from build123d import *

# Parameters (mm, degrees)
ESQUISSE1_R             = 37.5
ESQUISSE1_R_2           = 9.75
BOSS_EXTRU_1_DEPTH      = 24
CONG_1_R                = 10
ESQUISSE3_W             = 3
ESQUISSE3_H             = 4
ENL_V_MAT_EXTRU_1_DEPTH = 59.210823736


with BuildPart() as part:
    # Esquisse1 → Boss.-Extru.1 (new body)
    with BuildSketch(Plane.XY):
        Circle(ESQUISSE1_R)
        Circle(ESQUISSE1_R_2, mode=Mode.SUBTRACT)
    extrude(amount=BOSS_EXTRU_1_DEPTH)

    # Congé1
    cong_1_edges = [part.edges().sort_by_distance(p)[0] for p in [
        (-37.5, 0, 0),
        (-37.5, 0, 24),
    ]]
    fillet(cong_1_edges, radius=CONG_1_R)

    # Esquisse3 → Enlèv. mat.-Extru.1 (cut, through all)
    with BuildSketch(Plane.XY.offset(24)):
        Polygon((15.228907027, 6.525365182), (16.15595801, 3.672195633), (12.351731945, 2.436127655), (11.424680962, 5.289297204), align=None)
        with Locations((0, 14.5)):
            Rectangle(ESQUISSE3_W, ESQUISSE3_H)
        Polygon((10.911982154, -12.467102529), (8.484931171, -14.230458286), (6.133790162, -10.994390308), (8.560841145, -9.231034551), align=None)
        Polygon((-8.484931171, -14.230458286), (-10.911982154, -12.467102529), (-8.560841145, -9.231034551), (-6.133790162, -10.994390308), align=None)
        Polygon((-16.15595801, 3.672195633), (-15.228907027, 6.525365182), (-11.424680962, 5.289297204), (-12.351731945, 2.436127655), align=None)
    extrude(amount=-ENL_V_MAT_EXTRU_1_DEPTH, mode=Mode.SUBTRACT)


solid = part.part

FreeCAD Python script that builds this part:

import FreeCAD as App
import Part
import Sketcher
Q = App.Units.Quantity


def edges_at(feature, points):
    """Names of the edges that pass closest to the given points."""
    edges = feature.Shape.Edges
    near = lambda p: min(range(len(edges)), key=lambda i: edges[i].distToShape(Part.Vertex(*p))[0])
    return sorted({f"Edge{near(p) + 1}" for p in points})


def add_polygon(sketch, points):
    """Adds a closed chain of lines whose ends are joined by coincident constraints."""
    first, n = sketch.GeometryCount, len(points)
    for a, b in zip(points, points[1:] + points[:1]):
        sketch.addGeometry(Part.LineSegment(App.Vector(*a, 0), App.Vector(*b, 0)), False)
    for i in range(n):
        sketch.addConstraint(Sketcher.Constraint("Coincident", first + i, 2, first + (i + 1) % n, 1))

doc = App.newDocument("Part")
body = doc.addObject("PartDesign::Body", "Body")

sketch1 = body.newObject("Sketcher::SketchObject", "Sketch")
sketch1.AttachmentSupport = (doc.getObject("XY_Plane"), [""])
sketch1.MapMode = "FlatFace"
sketch1.addGeometry(Part.Circle(App.Vector(0, 0, 0), App.Vector(0, 0, 1), 38), False)
sketch1.addGeometry(Part.Circle(App.Vector(0, 0, 0), App.Vector(0, 0, 1), 10), False)
sketch1.addConstraint(Sketcher.Constraint("Coincident", 0, 3, -1, 1))
sketch1.addConstraint(Sketcher.Constraint("Coincident", 1, 3, -1, 1))
sketch1.addConstraint(Sketcher.Constraint("Diameter", 0, Q("75 mm")))
sketch1.addConstraint(Sketcher.Constraint("Diameter", 1, Q("19.5 mm")))
pad1 = body.newObject("PartDesign::Pad", "Pad")
pad1.Profile = sketch1
pad1.Length = 24
doc.recompute()

fillet = body.newObject("PartDesign::Fillet", "Fillet")
fillet.Base = (pad1, edges_at(pad1, [(-37.5, 0, 0), (-37.5, 0, 24)]))
fillet.Radius = 10

sketch2 = body.newObject("Sketcher::SketchObject", "Sketch001")
sketch2.AttachmentSupport = (doc.getObject("XY_Plane"), [""])
sketch2.MapMode = "FlatFace"
sketch2.AttachmentOffset = App.Placement(App.Vector(0, 0, 24), App.Rotation())
add_polygon(sketch2, [(16.2, 3.7), (15.2, 6.5), (11.4, 5.3), (12.4, 2.4)])
add_polygon(sketch2, [(-1.5, 16.5), (-1.5, 12.5), (1.5, 12.5), (1.5, 16.5)])
add_polygon(sketch2, [(8.5, -14.2), (10.9, -12.5), (8.6, -9.2), (6.1, -11)])
add_polygon(sketch2, [(-10.9, -12.5), (-8.5, -14.2), (-6.1, -11), (-8.6, -9.2)])
add_polygon(sketch2, [(-15.2, 6.5), (-16.2, 3.7), (-12.4, 2.4), (-11.4, 5.3)])
sketch2.addConstraint(Sketcher.Constraint("Vertical", 4))
sketch2.addConstraint(Sketcher.Constraint("Horizontal", 5))
sketch2.addConstraint(Sketcher.Constraint("Vertical", 6))
sketch2.addConstraint(Sketcher.Constraint("Horizontal", 7))
sketch2.addConstraint(Sketcher.Constraint("Symmetric", 11, 2, 12, 2, -2))
sketch2.addConstraint(Sketcher.Constraint("Symmetric", 10, 2, 13, 2, -2))
sketch2.addConstraint(Sketcher.Constraint("Symmetric", 9, 2, 14, 2, -2))
sketch2.addConstraint(Sketcher.Constraint("Symmetric", 8, 2, 15, 2, -2))
sketch2.addConstraint(Sketcher.Constraint("Symmetric", 3, 2, 16, 2, -2))
sketch2.addConstraint(Sketcher.Constraint("Symmetric", 2, 2, 17, 2, -2))
sketch2.addConstraint(Sketcher.Constraint("Symmetric", 1, 2, 18, 2, -2))
sketch2.addConstraint(Sketcher.Constraint("Symmetric", 0, 2, 19, 2, -2))
sketch2.addConstraint(Sketcher.Constraint("Perpendicular", 0, 1))
sketch2.addConstraint(Sketcher.Constraint("Perpendicular", 1, 2))
sketch2.addConstraint(Sketcher.Constraint("Perpendicular", 2, 3))
sketch2.addConstraint(Sketcher.Constraint("Perpendicular", 8, 9))
sketch2.addConstraint(Sketcher.Constraint("Perpendicular", 9, 10))
sketch2.addConstraint(Sketcher.Constraint("Perpendicular", 10, 11))
sketch2.addConstraint(Sketcher.Constraint("Equal", 2, 8))
sketch2.addConstraint(Sketcher.Constraint("Equal", 3, 9))
sketch2.addConstraint(Sketcher.Constraint("DistanceX", 5, 1, 5, 2, Q("3 mm")))
sketch2.addConstraint(Sketcher.Constraint("DistanceY", 4, 2, 4, 1, Q("4 mm")))
sketch2.addConstraint(Sketcher.Constraint("Angle", 0, Q("108 deg")))
sketch2.addConstraint(Sketcher.Constraint("Angle", 8, Q("36 deg")))
sketch2.addConstraint(Sketcher.Constraint("Distance", 0, Q("3 mm")))
sketch2.addConstraint(Sketcher.Constraint("Distance", 1, Q("4 mm")))
sketch2.addConstraint(Sketcher.Constraint("DistanceX", 4, 2, -1, 1, Q("1.5 mm")))
sketch2.addConstraint(Sketcher.Constraint("DistanceY", -1, 1, 4, 2, Q("12.5 mm")))
sketch2.addConstraint(Sketcher.Constraint("DistanceY", 8, 2, 3, 2, Q("16.139298 mm")))
sketch2.addConstraint(Sketcher.Constraint("DistanceX", 8, 2, 1, 2, Q("0.512699 mm")))
sketch2.addConstraint(Sketcher.Constraint("DistanceX", -1, 1, 1, 2, Q("11.424681 mm")))
sketch2.addConstraint(Sketcher.Constraint("DistanceY", 10, 2, -1, 1, Q("10.99439 mm")))
pocket1 = body.newObject("PartDesign::Pocket", "Pocket")
pocket1.Profile = sketch2
pocket1.Type = "ThroughAll"

doc.recompute()
